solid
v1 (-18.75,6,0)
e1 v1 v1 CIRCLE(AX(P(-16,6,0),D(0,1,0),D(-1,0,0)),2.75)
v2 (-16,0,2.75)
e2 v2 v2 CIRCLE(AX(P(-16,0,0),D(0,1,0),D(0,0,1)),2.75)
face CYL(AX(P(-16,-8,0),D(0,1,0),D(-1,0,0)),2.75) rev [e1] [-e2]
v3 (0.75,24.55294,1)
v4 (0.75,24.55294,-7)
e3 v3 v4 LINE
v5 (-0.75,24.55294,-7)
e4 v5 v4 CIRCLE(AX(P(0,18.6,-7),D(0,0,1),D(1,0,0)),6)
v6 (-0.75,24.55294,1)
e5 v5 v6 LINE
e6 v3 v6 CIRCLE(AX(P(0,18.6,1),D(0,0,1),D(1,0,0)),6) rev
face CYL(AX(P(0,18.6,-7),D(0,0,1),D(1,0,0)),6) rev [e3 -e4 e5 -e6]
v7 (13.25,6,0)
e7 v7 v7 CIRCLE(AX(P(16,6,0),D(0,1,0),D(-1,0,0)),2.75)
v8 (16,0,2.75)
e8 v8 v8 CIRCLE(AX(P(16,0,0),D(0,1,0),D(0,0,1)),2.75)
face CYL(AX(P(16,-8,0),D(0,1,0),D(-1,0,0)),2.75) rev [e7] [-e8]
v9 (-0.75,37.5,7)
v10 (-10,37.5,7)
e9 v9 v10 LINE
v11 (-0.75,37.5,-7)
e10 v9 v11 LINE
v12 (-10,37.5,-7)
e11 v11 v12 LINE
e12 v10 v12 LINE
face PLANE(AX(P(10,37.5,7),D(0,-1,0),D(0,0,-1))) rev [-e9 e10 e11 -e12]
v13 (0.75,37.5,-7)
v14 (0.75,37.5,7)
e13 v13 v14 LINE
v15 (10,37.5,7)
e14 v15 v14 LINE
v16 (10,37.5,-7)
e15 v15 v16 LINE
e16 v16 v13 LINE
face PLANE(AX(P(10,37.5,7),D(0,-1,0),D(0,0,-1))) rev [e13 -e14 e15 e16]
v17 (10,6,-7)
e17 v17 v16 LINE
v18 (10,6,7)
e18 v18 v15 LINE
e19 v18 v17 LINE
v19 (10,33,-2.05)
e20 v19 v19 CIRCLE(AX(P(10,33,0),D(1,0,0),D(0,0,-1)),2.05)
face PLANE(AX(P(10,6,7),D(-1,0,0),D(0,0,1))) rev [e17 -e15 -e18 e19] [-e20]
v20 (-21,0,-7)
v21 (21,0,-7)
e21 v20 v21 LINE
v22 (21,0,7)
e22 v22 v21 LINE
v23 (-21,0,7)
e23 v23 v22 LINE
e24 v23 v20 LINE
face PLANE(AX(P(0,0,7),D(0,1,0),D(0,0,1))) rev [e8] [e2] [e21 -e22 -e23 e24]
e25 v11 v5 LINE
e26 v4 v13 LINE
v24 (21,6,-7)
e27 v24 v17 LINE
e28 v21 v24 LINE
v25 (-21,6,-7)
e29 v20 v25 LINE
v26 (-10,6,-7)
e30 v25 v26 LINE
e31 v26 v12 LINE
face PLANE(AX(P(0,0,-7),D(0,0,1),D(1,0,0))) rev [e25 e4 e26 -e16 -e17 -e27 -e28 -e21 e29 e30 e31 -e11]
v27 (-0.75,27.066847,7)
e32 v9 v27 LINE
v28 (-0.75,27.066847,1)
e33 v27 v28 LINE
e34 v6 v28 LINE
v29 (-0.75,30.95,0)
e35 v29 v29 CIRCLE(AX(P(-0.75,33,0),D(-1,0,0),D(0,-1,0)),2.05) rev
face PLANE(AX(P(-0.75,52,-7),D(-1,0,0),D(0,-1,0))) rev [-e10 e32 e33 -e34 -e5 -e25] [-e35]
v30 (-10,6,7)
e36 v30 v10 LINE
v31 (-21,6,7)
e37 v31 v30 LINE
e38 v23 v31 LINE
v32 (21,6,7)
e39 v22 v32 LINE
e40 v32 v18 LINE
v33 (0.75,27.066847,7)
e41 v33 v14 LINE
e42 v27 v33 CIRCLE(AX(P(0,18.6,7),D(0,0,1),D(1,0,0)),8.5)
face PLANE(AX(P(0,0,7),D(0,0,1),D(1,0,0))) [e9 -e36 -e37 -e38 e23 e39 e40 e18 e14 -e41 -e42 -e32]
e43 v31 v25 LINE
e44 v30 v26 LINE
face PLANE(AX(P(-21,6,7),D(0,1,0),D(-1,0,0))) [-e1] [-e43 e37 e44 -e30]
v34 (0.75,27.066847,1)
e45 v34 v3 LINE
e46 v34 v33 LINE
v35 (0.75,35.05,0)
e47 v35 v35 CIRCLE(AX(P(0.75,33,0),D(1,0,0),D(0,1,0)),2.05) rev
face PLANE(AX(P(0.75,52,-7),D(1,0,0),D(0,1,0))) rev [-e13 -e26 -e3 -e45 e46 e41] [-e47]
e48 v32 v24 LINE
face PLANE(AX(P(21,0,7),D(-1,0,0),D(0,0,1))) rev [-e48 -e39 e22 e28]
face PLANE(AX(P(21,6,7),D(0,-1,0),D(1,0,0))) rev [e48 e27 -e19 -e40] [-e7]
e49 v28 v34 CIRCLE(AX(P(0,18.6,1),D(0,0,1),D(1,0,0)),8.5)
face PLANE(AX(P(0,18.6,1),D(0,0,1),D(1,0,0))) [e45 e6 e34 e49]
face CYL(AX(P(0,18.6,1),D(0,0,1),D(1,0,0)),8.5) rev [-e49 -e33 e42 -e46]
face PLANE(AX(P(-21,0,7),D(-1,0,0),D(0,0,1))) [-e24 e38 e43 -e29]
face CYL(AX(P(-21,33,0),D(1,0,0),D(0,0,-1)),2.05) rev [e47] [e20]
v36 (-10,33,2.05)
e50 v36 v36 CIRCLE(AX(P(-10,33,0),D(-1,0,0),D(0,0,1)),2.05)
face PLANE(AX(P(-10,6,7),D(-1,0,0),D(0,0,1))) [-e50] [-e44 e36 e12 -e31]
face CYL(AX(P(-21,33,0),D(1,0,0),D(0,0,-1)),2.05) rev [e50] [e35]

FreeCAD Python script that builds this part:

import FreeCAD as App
import Part
import Sketcher
from FreeCAD import Vector

doc = App.newDocument("Part")
body = doc.addObject("PartDesign::Body", "Body")

sketch1 = body.newObject("Sketcher::SketchObject", "Sketch")
sketch1.AttachmentSupport = (doc.getObject("XY_Plane"), [""])
sketch1.MapMode = "FlatFace"
sketch1.addGeometry(Part.LineSegment(Vector(0, 0, 0), Vector(21, 0, 0)), False)
sketch1.addGeometry(Part.LineSegment(Vector(21, 0, 0), Vector(21, 6, 0)), False)
sketch1.addGeometry(Part.LineSegment(Vector(21, 6, 0), Vector(10, 6, 0)), False)
sketch1.addGeometry(Part.LineSegment(Vector(10, 6, 0), Vector(10, 38, 0)), False)
sketch1.addGeometry(Part.LineSegment(Vector(10, 38, 0), Vector(0, 38, 0)), False)
sketch1.addGeometry(Part.LineSegment(Vector(0, 38, 0), Vector(0, 0, 0)), False)
sketch1.addConstraint(Sketcher.Constraint("Coincident", 0, 2, 1, 1))
sketch1.addConstraint(Sketcher.Constraint("Coincident", 1, 2, 2, 1))
sketch1.addConstraint(Sketcher.Constraint("Coincident", 2, 2, 3, 1))
sketch1.addConstraint(Sketcher.Constraint("Coincident", 3, 2, 4, 1))
sketch1.addConstraint(Sketcher.Constraint("Coincident", 4, 2, 5, 1))
sketch1.addConstraint(Sketcher.Constraint("Coincident", 5, 2, 0, 1))
sketch1.addConstraint(Sketcher.Constraint("Horizontal", 0))
sketch1.addConstraint(Sketcher.Constraint("Vertical", 1))
sketch1.addConstraint(Sketcher.Constraint("Horizontal", 2))
sketch1.addConstraint(Sketcher.Constraint("Vertical", 3))
sketch1.addConstraint(Sketcher.Constraint("Horizontal", 4))
sketch1.addConstraint(Sketcher.Constraint("Vertical", 5))
sketch1.addConstraint(Sketcher.Constraint("Coincident", 5, 2, -1, 1))
sketch1.addConstraint(Sketcher.Constraint("DistanceX", 0, 1, 0, 2, 21.0))
sketch1.addConstraint(Sketcher.Constraint("DistanceX", 2, 2, 2, 1, 11.0))
sketch1.addConstraint(Sketcher.Constraint("DistanceY", 1, 1, 1, 2, 6.0))
sketch1.addConstraint(Sketcher.Constraint("DistanceY", 3, 1, 3, 2, 31.5))
pad1 = body.newObject("PartDesign::Pad", "Pad")
pad1.Profile = sketch1
pad1.Length = 14
pad1.Midplane = True
doc.recompute()

mirrored = body.newObject("PartDesign::Mirrored", "Mirrored")
mirrored.Originals = [pad1]
mirrored.MirrorPlane = (doc.getObject("YZ_Plane"), [""])
body.Tip = mirrored

sketch2 = body.newObject("Sketcher::SketchObject", "Sketch001")
sketch2.AttachmentSupport = (doc.getObject("XY_Plane"), [""])
sketch2.MapMode = "FlatFace"
sketch2.AttachmentOffset = App.Placement(Vector(0, 0, 7), App.Rotation())
sketch2.addGeometry(Part.Circle(Vector(0, 19, 0), Vector(0, 0, 1), 6), False)
sketch2.addConstraint(Sketcher.Constraint("PointOnObject", 0, 3, -2))
sketch2.addConstraint(Sketcher.Constraint("Diameter", 0, 12.0))
sketch2.addConstraint(Sketcher.Constraint("DistanceY", -1, 1, 0, 3, 18.6))
pocket1 = body.newObject("PartDesign::Pocket", "Pocket")
pocket1.Profile = sketch2
pocket1.Type = "ThroughAll"

sketch3 = body.newObject("Sketcher::SketchObject", "Sketch002")
sketch3.AttachmentSupport = (doc.getObject("YZ_Plane"), [""])
sketch3.MapMode = "FlatFace"
sketch3.AttachmentOffset = App.Placement(Vector(0, 0, 10), App.Rotation())
sketch3.addGeometry(Part.Circle(Vector(33, 0, 0), Vector(0, 0, 1), 2), False)
sketch3.addConstraint(Sketcher.Constraint("PointOnObject", 0, 3, -1))
sketch3.addConstraint(Sketcher.Constraint("Diameter", 0, 4.1))
sketch3.addConstraint(Sketcher.Constraint("DistanceX", -1, 1, 0, 3, 33.0))
pocket2 = body.newObject("PartDesign::Pocket", "Pocket001")
pocket2.Profile = sketch3
pocket2.Type = "ThroughAll"

sketch4 = body.newObject("Sketcher::SketchObject", "Sketch003")
sketch4.AttachmentSupport = (doc.getObject("XZ_Plane"), [""])
sketch4.MapMode = "FlatFace"
sketch4.AttachmentOffset = App.Placement(Vector(0, 0, -6), App.Rotation())
sketch4.addGeometry(Part.Circle(Vector(-16, 0, 0), Vector(0, 0, 1), 2.8), False)
sketch4.addGeometry(Part.Circle(Vector(16, 0, 0), Vector(0, 0, 1), 2.8), False)
sketch4.addConstraint(Sketcher.Constraint("Equal", 0, 1))
sketch4.addConstraint(Sketcher.Constraint("Symmetric", 0, 3, 1, 3, -1, 1))
sketch4.addConstraint(Sketcher.Constraint("PointOnObject", 0, 3, -1))
sketch4.addConstraint(Sketcher.Constraint("Diameter", 0, 5.5))
sketch4.addConstraint(Sketcher.Constraint("DistanceX", 0, 3, -1, 1, 16.0))
pocket3 = body.newObject("PartDesign::Pocket", "Pocket002")
pocket3.Profile = sketch4
pocket3.Length = 14
pocket3.Reversed = True

sketch5 = body.newObject("Sketcher::SketchObject", "Sketch004")
sketch5.AttachmentSupport = (doc.getObject("XY_Plane"), [""])
sketch5.MapMode = "FlatFace"
sketch5.AttachmentOffset = App.Placement(Vector(0, 0, 7), App.Rotation())
sketch5.addGeometry(Part.LineSegment(Vector(-0.8, 52, 0), Vector(-0.8, 23, 0)), False)
sketch5.addGeometry(Part.LineSegment(Vector(-0.8, 23, 0), Vector(0.8, 23, 0)), False)
sketch5.addGeometry(Part.LineSegment(Vector(0.8, 23, 0), Vector(0.8, 52, 0)), False)
sketch5.addGeometry(Part.LineSegment(Vector(0.8, 52, 0), Vector(-0.8, 52, 0)), False)
sketch5.addConstraint(Sketcher.Constraint("Coincident", 0, 2, 1, 1))
sketch5.addConstraint(Sketcher.Constraint("Coincident", 1, 2, 2, 1))
sketch5.addConstraint(Sketcher.Constraint("Coincident", 2, 2, 3, 1))
sketch5.addConstraint(Sketcher.Constraint("Coincident", 3, 2, 0, 1))
sketch5.addConstraint(Sketcher.Constraint("Vertical", 0))
sketch5.addConstraint(Sketcher.Constraint("Horizontal", 1))
sketch5.addConstraint(Sketcher.Constraint("Vertical", 2))
sketch5.addConstraint(Sketcher.Constraint("Horizontal", 3))
sketch5.addConstraint(Sketcher.Constraint("DistanceY", 0, 2, 0, 1, 29.0))
sketch5.addConstraint(Sketcher.Constraint("DistanceX", 1, 1, 1, 2, 1.5))
sketch5.addConstraint(Sketcher.Constraint("DistanceY", -1, 1, 0, 2, 23.0))
sketch5.addConstraint(Sketcher.Constraint("DistanceX", 0, 2, -1, 1, 0.75))
pocket4 = body.newObject("PartDesign::Pocket", "Pocket003")
pocket4.Profile = sketch5
pocket4.Type = "ThroughAll"

sketch6 = body.newObject("Sketcher::SketchObject", "Sketch005")
sketch6.AttachmentSupport = (doc.getObject("XY_Plane"), [""])
sketch6.MapMode = "FlatFace"
sketch6.AttachmentOffset = App.Placement(Vector(0, 0, 7), App.Rotation())
sketch6.addGeometry(Part.Circle(Vector(0, 19, 0), Vector(0, 0, 1), 8), False)
sketch6.addConstraint(Sketcher.Constraint("PointOnObject", 0, 3, -2))
sketch6.addConstraint(Sketcher.Constraint("Diameter", 0, 17.0))
sketch6.addConstraint(Sketcher.Constraint("DistanceY", -1, 1, 0, 3, 18.6))
pocket5 = body.newObject("PartDesign::Pocket", "Pocket004")
pocket5.Profile = sketch6
pocket5.Length = 6

doc.recompute()
